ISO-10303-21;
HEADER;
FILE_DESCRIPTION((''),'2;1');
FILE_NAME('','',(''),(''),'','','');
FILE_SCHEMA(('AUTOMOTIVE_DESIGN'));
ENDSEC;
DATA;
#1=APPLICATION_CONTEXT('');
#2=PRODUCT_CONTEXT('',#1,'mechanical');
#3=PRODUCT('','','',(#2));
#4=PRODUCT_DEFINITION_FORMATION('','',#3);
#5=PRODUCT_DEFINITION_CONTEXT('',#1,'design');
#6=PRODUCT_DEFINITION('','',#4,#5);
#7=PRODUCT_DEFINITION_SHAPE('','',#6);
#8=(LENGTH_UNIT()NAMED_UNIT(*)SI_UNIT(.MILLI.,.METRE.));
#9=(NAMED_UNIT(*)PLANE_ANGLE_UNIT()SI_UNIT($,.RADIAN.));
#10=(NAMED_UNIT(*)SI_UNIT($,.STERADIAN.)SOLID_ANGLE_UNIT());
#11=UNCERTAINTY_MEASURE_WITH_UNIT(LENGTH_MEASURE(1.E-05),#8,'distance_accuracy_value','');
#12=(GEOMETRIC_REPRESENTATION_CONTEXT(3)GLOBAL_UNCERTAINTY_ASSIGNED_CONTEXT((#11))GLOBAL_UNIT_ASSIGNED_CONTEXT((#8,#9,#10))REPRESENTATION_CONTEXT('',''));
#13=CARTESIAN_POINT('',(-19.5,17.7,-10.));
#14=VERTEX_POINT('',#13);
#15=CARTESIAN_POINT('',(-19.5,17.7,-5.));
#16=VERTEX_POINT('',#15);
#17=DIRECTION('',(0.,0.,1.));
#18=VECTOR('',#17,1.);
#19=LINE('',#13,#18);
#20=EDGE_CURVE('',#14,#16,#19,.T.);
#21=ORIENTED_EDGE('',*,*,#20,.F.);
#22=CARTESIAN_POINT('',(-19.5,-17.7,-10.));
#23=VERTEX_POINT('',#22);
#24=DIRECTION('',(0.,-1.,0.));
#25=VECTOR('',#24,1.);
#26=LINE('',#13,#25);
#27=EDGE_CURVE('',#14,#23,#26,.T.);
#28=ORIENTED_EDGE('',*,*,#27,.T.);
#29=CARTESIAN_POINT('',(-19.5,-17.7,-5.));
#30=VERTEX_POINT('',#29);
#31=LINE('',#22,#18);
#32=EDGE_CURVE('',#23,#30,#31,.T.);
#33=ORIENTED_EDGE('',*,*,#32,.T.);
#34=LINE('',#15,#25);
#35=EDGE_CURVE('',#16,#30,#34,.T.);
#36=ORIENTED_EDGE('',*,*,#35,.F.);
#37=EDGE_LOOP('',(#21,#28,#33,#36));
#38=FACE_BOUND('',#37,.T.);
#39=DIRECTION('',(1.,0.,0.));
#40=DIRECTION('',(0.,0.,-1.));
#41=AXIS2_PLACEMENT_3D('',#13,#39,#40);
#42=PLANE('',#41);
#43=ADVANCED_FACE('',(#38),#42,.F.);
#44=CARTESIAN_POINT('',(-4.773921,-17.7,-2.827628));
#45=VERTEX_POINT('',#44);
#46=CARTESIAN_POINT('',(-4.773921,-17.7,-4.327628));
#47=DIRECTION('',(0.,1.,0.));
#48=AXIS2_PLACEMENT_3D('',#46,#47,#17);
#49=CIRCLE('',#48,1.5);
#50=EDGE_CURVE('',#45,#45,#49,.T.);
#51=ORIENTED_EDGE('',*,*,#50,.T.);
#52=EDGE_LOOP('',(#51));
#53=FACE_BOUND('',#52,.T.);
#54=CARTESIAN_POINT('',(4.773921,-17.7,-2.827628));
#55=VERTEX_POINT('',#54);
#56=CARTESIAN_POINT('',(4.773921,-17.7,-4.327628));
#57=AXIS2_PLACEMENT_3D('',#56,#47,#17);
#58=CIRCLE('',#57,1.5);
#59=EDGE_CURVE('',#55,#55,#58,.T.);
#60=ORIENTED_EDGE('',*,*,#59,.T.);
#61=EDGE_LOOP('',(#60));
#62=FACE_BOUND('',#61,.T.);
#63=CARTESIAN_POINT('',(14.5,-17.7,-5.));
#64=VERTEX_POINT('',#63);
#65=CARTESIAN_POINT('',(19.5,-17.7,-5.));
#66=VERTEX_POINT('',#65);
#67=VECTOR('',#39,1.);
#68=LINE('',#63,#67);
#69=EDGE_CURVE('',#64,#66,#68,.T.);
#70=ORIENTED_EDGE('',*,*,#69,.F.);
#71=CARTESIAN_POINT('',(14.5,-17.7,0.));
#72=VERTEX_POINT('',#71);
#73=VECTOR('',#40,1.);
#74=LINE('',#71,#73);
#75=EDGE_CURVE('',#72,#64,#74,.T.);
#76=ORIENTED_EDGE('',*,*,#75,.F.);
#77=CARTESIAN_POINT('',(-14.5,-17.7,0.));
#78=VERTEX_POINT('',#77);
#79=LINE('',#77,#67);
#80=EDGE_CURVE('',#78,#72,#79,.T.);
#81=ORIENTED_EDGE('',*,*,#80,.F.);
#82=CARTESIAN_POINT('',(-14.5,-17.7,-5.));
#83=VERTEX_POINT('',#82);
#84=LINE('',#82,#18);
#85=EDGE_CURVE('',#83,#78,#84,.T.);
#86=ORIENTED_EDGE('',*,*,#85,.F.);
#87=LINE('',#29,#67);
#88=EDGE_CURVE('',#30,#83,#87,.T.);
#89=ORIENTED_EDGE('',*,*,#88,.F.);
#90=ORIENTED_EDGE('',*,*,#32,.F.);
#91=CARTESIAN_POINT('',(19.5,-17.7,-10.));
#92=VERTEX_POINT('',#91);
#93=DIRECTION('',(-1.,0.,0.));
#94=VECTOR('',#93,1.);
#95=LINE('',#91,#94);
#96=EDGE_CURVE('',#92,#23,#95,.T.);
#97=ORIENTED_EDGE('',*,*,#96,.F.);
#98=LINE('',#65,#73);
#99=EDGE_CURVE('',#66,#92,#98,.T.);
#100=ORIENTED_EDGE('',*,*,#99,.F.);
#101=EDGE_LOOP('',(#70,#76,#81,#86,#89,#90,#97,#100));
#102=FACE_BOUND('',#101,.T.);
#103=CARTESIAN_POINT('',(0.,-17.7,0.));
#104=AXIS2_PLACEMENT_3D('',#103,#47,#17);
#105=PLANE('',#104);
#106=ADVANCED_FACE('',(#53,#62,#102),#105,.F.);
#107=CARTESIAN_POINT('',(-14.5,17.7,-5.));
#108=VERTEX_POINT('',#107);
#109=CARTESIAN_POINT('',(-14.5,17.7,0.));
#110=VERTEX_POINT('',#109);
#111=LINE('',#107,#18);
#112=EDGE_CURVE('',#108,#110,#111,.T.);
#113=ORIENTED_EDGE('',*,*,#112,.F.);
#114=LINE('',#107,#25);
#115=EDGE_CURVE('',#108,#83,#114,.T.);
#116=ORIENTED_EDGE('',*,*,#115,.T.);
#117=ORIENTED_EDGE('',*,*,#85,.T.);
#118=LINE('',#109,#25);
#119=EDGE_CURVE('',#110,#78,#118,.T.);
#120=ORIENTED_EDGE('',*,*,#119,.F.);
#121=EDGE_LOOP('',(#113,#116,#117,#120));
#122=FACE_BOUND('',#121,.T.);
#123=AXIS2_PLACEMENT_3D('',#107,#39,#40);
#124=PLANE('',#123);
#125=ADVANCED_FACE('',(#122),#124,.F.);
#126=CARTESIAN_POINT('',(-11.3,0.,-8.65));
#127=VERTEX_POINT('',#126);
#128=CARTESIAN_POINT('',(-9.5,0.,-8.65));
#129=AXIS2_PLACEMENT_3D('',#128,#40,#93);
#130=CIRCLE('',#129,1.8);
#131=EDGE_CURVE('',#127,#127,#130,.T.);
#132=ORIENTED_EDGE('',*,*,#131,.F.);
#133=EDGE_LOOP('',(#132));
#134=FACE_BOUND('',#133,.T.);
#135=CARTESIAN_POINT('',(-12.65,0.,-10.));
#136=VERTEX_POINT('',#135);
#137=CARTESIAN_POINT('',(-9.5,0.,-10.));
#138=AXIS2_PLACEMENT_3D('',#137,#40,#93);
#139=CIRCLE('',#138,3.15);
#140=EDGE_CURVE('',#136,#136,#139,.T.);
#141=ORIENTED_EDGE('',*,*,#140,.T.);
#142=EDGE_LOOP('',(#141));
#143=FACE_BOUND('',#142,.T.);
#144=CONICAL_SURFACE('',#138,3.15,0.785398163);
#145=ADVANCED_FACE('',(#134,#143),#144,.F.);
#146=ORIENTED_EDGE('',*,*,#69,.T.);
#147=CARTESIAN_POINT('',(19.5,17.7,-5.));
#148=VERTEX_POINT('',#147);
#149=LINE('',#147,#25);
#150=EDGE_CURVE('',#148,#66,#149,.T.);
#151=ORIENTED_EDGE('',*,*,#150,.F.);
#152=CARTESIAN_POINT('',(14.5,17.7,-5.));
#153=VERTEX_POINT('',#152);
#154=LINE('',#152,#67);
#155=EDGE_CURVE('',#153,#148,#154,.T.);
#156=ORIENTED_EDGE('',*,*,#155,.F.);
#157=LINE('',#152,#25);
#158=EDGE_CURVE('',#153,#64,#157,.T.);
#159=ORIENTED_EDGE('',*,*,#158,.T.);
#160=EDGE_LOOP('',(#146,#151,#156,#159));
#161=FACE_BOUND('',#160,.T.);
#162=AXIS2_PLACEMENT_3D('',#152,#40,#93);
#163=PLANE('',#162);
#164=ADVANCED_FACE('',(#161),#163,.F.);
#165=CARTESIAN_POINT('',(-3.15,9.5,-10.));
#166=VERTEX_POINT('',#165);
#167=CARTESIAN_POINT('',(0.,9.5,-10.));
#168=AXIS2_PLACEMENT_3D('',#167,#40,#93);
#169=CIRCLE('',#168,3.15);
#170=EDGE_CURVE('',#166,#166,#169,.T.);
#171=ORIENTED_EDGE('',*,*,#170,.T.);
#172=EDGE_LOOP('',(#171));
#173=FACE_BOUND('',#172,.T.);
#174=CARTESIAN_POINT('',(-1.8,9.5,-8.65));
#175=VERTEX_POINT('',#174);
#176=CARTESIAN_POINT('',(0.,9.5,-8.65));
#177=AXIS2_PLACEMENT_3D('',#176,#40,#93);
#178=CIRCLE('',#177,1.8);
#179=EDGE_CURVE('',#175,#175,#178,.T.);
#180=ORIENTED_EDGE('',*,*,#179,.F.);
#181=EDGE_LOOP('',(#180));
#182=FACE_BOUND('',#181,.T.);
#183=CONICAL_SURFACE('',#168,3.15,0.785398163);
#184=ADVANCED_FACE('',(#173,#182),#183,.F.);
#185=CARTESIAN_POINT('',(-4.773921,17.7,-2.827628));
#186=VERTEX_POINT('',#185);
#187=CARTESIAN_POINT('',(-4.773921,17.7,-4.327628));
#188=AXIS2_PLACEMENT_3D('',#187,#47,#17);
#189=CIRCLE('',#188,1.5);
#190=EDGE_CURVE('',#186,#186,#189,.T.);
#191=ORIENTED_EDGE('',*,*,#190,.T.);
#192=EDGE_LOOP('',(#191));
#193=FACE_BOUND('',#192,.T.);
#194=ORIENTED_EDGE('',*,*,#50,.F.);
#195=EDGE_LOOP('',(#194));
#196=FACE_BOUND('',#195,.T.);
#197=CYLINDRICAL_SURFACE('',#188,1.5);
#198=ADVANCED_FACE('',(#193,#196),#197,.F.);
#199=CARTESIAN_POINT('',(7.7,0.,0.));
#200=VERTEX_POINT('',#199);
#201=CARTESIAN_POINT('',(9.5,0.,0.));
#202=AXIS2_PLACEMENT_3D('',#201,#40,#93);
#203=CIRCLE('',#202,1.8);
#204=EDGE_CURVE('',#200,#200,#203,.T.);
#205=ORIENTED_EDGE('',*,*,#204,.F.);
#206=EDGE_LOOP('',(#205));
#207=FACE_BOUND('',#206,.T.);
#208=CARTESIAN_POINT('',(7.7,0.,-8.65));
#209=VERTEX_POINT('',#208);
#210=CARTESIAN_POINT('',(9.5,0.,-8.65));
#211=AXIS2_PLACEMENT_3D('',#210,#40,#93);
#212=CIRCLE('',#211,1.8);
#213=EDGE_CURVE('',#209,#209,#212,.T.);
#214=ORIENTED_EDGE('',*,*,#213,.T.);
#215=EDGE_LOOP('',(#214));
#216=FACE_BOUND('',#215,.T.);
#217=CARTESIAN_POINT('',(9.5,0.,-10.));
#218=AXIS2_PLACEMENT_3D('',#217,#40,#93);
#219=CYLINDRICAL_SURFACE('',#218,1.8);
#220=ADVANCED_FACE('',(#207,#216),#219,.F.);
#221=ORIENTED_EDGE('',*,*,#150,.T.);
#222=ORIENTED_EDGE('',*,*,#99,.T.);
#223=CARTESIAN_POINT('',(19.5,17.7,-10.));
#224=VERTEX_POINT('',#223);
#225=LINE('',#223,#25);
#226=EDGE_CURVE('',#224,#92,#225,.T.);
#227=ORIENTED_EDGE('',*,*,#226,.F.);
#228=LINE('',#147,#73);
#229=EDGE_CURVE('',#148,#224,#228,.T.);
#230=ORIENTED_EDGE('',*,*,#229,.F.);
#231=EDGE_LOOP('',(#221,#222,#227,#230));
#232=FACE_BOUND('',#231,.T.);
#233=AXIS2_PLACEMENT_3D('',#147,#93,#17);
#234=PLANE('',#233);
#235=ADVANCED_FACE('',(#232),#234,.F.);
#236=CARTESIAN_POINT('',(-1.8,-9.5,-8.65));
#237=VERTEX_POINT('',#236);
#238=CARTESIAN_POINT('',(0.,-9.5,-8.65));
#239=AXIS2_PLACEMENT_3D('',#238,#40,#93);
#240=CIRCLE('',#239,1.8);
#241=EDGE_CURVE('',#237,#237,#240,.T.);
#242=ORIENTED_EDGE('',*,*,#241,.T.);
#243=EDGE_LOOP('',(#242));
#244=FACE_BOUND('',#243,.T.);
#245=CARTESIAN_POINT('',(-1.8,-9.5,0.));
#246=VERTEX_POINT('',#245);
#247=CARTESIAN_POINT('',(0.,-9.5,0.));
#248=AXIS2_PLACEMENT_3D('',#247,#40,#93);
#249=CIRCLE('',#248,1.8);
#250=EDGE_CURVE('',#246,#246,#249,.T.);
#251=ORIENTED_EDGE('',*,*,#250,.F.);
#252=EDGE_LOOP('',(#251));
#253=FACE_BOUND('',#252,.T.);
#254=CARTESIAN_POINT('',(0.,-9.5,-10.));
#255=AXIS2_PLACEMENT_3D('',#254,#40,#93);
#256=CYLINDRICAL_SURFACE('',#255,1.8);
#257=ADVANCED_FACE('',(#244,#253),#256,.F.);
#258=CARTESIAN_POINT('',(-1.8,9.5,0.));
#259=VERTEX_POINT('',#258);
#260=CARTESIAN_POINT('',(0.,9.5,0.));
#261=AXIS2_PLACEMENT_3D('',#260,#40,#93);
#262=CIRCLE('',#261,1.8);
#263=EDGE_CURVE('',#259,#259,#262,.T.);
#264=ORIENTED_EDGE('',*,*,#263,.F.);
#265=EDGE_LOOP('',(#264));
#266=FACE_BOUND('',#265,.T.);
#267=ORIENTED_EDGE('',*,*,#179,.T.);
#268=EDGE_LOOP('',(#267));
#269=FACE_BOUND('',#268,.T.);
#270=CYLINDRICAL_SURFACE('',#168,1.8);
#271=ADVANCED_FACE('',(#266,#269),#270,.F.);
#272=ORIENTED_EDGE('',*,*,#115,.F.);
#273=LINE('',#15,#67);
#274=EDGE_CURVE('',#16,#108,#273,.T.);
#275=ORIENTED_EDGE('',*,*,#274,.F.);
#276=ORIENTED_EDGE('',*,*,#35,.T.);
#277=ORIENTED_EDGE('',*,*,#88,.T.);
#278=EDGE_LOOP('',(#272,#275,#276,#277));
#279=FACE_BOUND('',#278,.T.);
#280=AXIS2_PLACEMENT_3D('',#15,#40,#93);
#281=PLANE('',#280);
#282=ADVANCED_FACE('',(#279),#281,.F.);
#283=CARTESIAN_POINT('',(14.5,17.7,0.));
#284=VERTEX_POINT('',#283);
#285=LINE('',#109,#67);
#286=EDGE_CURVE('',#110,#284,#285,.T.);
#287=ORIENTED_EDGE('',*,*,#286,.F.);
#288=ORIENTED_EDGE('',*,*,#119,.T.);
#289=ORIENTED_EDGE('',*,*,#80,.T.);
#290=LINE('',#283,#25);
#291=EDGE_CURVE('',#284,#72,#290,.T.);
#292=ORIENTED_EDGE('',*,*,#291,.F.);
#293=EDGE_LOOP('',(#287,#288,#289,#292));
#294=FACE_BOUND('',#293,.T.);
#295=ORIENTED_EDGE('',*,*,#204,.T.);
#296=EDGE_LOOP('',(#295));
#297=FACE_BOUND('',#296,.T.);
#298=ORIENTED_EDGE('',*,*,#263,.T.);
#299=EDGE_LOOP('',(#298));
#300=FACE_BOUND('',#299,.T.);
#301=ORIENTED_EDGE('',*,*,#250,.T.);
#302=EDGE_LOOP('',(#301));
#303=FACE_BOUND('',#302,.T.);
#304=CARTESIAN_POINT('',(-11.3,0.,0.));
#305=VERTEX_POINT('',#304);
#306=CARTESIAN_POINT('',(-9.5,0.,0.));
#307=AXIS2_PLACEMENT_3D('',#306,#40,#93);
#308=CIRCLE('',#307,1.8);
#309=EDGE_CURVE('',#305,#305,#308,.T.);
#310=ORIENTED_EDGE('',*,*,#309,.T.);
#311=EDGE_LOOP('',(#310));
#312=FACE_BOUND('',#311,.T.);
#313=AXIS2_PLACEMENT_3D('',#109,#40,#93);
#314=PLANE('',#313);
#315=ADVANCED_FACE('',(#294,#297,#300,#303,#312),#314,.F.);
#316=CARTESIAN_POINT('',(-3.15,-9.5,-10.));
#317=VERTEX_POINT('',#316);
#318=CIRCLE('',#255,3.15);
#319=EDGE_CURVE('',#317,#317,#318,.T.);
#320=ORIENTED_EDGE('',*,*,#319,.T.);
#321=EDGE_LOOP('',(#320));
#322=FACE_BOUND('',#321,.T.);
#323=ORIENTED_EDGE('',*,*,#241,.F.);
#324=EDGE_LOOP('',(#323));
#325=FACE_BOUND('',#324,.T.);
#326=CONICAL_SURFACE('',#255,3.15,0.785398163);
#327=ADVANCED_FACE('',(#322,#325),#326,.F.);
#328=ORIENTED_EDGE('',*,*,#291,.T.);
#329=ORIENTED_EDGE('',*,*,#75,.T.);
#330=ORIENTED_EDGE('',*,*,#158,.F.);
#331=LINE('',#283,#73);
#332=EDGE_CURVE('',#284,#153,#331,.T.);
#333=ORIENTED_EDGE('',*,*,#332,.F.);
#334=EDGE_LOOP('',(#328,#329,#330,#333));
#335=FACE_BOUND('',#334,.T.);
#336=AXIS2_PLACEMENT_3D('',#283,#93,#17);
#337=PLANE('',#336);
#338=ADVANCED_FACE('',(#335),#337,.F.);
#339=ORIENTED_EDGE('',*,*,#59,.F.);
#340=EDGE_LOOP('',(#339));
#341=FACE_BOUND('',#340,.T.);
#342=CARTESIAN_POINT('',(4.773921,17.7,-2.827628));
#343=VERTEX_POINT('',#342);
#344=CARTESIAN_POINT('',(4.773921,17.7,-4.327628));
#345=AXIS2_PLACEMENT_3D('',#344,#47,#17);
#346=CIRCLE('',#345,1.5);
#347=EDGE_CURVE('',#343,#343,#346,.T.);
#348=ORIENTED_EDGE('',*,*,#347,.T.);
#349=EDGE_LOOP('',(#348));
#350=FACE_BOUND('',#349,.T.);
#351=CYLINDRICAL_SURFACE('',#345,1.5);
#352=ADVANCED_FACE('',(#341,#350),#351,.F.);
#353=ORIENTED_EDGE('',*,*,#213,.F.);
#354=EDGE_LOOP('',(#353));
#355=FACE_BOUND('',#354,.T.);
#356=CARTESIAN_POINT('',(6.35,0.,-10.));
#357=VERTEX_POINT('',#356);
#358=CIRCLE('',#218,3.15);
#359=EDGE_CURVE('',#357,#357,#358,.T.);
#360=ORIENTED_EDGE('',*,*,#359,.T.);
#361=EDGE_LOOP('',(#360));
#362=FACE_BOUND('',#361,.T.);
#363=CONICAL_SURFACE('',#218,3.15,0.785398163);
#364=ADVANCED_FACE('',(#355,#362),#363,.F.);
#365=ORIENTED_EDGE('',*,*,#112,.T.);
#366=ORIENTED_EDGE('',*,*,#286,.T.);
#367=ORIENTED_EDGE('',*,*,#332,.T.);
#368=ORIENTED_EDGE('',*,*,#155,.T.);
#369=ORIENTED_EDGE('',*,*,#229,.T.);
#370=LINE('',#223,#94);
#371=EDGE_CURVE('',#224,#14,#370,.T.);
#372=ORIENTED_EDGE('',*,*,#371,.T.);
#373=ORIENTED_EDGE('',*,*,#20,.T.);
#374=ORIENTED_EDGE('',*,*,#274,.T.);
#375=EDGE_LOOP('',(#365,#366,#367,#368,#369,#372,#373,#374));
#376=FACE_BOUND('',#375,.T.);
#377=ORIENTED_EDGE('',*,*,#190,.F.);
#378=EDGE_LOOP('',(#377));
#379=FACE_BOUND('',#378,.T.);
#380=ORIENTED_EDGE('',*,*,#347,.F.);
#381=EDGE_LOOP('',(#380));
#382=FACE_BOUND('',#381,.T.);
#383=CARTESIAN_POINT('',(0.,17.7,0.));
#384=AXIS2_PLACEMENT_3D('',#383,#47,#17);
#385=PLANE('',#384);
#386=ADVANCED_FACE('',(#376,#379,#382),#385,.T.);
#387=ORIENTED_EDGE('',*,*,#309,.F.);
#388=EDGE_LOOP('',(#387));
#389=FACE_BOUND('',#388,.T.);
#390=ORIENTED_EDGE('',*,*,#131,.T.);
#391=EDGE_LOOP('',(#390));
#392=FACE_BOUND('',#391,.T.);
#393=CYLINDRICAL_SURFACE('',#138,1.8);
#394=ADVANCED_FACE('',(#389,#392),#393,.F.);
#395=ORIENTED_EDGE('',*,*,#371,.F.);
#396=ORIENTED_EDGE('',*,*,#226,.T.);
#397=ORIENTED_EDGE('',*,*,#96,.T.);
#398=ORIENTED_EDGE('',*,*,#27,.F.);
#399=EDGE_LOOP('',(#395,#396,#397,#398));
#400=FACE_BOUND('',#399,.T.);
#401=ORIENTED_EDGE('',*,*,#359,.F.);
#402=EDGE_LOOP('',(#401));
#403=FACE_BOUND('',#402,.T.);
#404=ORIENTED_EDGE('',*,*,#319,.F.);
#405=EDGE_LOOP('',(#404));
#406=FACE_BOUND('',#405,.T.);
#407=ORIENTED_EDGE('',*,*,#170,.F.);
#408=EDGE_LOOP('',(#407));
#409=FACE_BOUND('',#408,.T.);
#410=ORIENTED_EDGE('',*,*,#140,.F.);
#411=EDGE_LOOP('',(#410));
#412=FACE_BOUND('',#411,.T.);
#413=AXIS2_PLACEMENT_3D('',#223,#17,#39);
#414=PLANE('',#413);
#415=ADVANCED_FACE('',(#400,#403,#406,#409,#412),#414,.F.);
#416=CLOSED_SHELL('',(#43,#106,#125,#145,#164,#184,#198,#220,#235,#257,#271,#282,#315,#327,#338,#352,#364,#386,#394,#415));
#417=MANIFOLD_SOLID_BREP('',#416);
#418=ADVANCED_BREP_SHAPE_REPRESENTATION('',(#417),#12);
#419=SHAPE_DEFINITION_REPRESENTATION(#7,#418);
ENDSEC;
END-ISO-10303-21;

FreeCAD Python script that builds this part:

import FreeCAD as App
import Part
import Sketcher


def add_polygon(sketch, points):
    """Adds a closed chain of lines whose ends are joined by coincident constraints."""
    first, n = sketch.GeometryCount, len(points)
    for a, b in zip(points, points[1:] + points[:1]):
        sketch.addGeometry(Part.LineSegment(App.Vector(*a, 0), App.Vector(*b, 0)), False)
    for i in range(n):
        sketch.addConstraint(Sketcher.Constraint("Coincident", first + i, 2, first + (i + 1) % n, 1))

doc = App.newDocument("Part")
body = doc.addObject("PartDesign::Body", "Body")

sketch1 = body.newObject("Sketcher::SketchObject", "Sketch")
sketch1.AttachmentSupport = (doc.getObject("XZ_Plane"), [""])
sketch1.MapMode = "FlatFace"
add_polygon(sketch1, [(-14.5, 0), (14.5, 0), (14.5, -5), (19.5, -5), (19.5, -10), (-19.5, -10), (-19.5, -5), (-14.5, -5)])
sketch1.addConstraint([
    Sketcher.Constraint("Horizontal", 0),
    Sketcher.Constraint("Vertical", 1),
    Sketcher.Constraint("Horizontal", 2),
    Sketcher.Constraint("Vertical", 3),
    Sketcher.Constraint("Horizontal", 4),
    Sketcher.Constraint("Vertical", 5),
    Sketcher.Constraint("Horizontal", 6),
    Sketcher.Constraint("Vertical", 7),
    Sketcher.Constraint("Symmetric", 0, 2, 7, 2, -1, 1),
    Sketcher.Constraint("Symmetric", 2, 2, 5, 2, -2),
    Sketcher.Constraint("Equal", 6, 1),
    Sketcher.Constraint("Equal", 1, 3),
    Sketcher.Constraint("DistanceX", 0, 1, 0, 2, 29.0),
    Sketcher.Constraint("DistanceX", 2, 1, 2, 2, 5.0),
])
pad1 = body.newObject("PartDesign::Pad", "Pad")
pad1.Profile = sketch1
pad1.Length = 35.4
pad1.Midplane = True

sketch2 = body.newObject("Sketcher::SketchObject", "Sketch001")
sketch2.AttachmentSupport = (doc.getObject("XY_Plane"), [""])
sketch2.MapMode = "FlatFace"
sketch2.AttachmentOffset = App.Placement(App.Vector(0, 0, -10), App.Rotation())
sketch2.addGeometry([
    Part.Circle(App.Vector(0, 9.5, 0), App.Vector(0, 0, 1), 1.8),
    Part.Circle(App.Vector(9.5, 0, 0), App.Vector(0, 0, 1), 1.8),
    Part.Circle(App.Vector(-9.5, 0, 0), App.Vector(0, 0, 1), 1.8),
    Part.Circle(App.Vector(0, -9.5, 0), App.Vector(0, 0, 1), 1.8),
], False)
sketch2.addConstraint([
    Sketcher.Constraint("Equal", 0, 1),
    Sketcher.Constraint("Equal", 1, 2),
    Sketcher.Constraint("Equal", 2, 3),
    Sketcher.Constraint("Symmetric", 1, 3, 2, 3, -1, 1),
    Sketcher.Constraint("Symmetric", 0, 3, 3, 3, -1, 1),
    Sketcher.Constraint("PointOnObject", 0, 3, -2),
    Sketcher.Constraint("PointOnObject", 1, 3, -1),
    Sketcher.Constraint("Diameter", 0, 3.6),
    Sketcher.Constraint("DistanceX", 2, 3, 1, 3, 19.0),
    Sketcher.Constraint("DistanceY", 3, 3, 0, 3, 19.0),
])
doc.recompute()
hole = body.newObject("PartDesign::Hole", "Hole")
hole.Profile = sketch2
hole.ThreadType = "None"
hole.Diameter = 3.6
hole.DepthType = "ThroughAll"
hole.HoleCutType = "Countersink"
hole.HoleCutDiameter = 6.3
hole.HoleCutCountersinkAngle = 90
hole.Reversed = True

sketch3 = body.newObject("Sketcher::SketchObject", "Sketch002")
sketch3.AttachmentSupport = (doc.getObject("XZ_Plane"), [""])
sketch3.MapMode = "FlatFace"
sketch3.AttachmentOffset = App.Placement(App.Vector(0, 0, -17.7), App.Rotation())
sketch3.addGeometry([
    Part.Circle(App.Vector(-4.773921, -4.327628, 0), App.Vector(0, 0, 1), 1.5),
    Part.Circle(App.Vector(4.773921, -4.327628, 0), App.Vector(0, 0, 1), 1.5),
], False)
sketch3.addConstraint([
    Sketcher.Constraint("Equal", 0, 1),
    Sketcher.Constraint("Symmetric", 0, 3, 1, 3, -2),
    Sketcher.Constraint("Diameter", 0, 3.0),
    Sketcher.Constraint("DistanceX", 0, 3, -1, 1, 4.773921),
    Sketcher.Constraint("DistanceY", 0, 3, -1, 1, 4.327628),
])
doc.recompute()
hole2 = body.newObject("PartDesign::Hole", "Hole001")
hole2.Profile = sketch3
hole2.ThreadType = "None"
hole2.Diameter = 3
hole2.DepthType = "ThroughAll"
hole2.Reversed = True

doc.recompute()
